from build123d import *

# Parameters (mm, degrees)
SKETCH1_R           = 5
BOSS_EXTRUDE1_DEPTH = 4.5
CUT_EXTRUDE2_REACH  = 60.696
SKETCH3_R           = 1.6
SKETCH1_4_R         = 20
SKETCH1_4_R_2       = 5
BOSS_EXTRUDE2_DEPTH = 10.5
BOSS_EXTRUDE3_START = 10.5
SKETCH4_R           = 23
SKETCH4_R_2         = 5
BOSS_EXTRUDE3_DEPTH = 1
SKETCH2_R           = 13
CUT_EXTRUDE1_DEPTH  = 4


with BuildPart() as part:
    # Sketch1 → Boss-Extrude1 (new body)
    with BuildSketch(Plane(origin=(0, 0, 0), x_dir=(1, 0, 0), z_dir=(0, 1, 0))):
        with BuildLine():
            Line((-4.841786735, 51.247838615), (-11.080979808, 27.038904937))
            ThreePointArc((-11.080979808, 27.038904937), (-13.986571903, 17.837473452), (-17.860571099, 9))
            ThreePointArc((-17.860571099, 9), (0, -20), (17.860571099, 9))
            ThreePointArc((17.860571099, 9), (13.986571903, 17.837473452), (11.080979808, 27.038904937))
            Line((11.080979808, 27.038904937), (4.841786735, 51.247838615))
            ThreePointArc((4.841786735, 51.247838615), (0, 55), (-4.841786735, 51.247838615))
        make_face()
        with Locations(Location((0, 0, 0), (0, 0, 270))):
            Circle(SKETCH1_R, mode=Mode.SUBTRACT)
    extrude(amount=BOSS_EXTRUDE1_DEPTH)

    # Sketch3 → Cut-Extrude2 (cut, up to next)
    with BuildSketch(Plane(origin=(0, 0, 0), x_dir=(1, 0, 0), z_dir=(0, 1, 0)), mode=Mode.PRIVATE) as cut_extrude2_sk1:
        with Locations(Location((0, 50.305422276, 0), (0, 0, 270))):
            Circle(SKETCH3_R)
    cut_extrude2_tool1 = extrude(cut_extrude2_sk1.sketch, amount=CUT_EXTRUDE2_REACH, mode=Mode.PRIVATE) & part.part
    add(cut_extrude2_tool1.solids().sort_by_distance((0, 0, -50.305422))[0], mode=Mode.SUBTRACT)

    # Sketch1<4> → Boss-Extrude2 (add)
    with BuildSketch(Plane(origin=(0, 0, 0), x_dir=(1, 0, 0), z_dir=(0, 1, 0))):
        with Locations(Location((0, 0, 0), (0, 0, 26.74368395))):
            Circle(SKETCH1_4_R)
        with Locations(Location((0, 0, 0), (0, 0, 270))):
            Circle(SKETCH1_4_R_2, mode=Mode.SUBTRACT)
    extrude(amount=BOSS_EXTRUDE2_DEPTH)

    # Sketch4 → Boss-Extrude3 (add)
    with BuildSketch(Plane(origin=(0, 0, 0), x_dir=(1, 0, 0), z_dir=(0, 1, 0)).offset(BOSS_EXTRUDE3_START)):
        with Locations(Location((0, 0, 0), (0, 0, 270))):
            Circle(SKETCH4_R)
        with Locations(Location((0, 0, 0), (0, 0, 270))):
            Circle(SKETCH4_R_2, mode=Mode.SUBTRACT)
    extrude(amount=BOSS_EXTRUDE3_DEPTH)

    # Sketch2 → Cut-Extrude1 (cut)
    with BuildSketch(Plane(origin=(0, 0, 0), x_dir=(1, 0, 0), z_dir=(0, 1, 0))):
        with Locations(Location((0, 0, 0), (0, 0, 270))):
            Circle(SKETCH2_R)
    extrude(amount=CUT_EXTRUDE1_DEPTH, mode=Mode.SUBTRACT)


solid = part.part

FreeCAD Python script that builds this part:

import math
import FreeCAD as App
import Part
import Sketcher
Q = App.Units.Quantity

doc = App.newDocument("Part")
body = doc.addObject("PartDesign::Body", "Body")

# Sketch on XZ plane
sketch1 = doc.addObject("Sketcher::SketchObject", "Sketch")
body.addObject(sketch1)
sketch1.AttachmentSupport = (doc.XZ_Plane, [""])
sketch1.MapMode = "FlatFace"
sketch1.addGeometry(Part.LineSegment(App.Vector(-4.841787, -51.247839, 0), App.Vector(-11.08098, -27.038905, 0)), False)
sketch1.addGeometry(Part.ArcOfCircle(Part.Circle(App.Vector(-98.233141, -49.5, 0), App.Vector(0, 0, 1), 90), math.radians(14.451934), math.radians(26.743684)), False)
sketch1.addGeometry(Part.ArcOfCircle(Part.Circle(App.Vector(0, 0, 0), App.Vector(0, 0, 1), 20), math.radians(-26.743684), math.radians(206.743684)), False)
sketch1.addGeometry(Part.ArcOfCircle(Part.Circle(App.Vector(98.233141, -49.5, 0), App.Vector(0, 0, 1), 90), math.radians(153.256316), math.radians(165.548066)), False)
sketch1.addGeometry(Part.LineSegment(App.Vector(11.08098, -27.038905, 0), App.Vector(4.841787, -51.247839, 0)), False)
sketch1.addGeometry(Part.ArcOfCircle(Part.Circle(App.Vector(0, -50, 0), App.Vector(0, 0, 1), 5), math.radians(-165.548066), math.radians(-14.451934)), False)
sketch1.addGeometry(Part.Circle(App.Vector(0, 0, 0), App.Vector(0, 0, 1), 5), False)
sketch1.addConstraint(Sketcher.Constraint("Tangent", 0, 2, 1, 1))
sketch1.addConstraint(Sketcher.Constraint("Tangent", 1, 2, 2, 2))
sketch1.addConstraint(Sketcher.Constraint("Tangent", 2, 1, 3, 1))
sketch1.addConstraint(Sketcher.Constraint("Tangent", 3, 2, 4, 1))
sketch1.addConstraint(Sketcher.Constraint("Tangent", 4, 2, 5, 2))
sketch1.addConstraint(Sketcher.Constraint("Tangent", 5, 1, 0, 1))
sketch1.addConstraint(Sketcher.Constraint("Coincident", 2, 3, -1, 1))
sketch1.addConstraint(Sketcher.Constraint("Coincident", 6, 3, -1, 1))
sketch1.addConstraint(Sketcher.Constraint("Equal", 1, 3))
sketch1.addConstraint(Sketcher.Constraint("Equal", 5, 6))
sketch1.addConstraint(Sketcher.Constraint("Symmetric", 0, 2, 3, 2, -2))
sketch1.addConstraint(Sketcher.Constraint("Diameter", 6, Q("10 mm")))
sketch1.addConstraint(Sketcher.Constraint("Radius", 1, Q("90 mm")))
sketch1.addConstraint(Sketcher.Constraint("Radius", 2, Q("20 mm")))
sketch1.addConstraint(Sketcher.Constraint("Distance", 0, Q("25 mm")))
sketch1.addConstraint(Sketcher.Constraint("DistanceY", 5, 3, -1, 1, Q("50 mm")))
pad1 = doc.addObject("PartDesign::Pad", "Pad")
body.addObject(pad1)
pad1.Profile = sketch1
pad1.Length = 4.5
pad1.Reversed = True

# Sketch on XZ plane
sketch2 = doc.addObject("Sketcher::SketchObject", "Sketch001")
body.addObject(sketch2)
sketch2.AttachmentSupport = (doc.XZ_Plane, [""])
sketch2.MapMode = "FlatFace"
sketch2.addGeometry(Part.Circle(App.Vector(0, -50.305422, 0), App.Vector(0, 0, 1), 1.6), False)
sketch2.addConstraint(Sketcher.Constraint("PointOnObject", 0, 3, -2))
sketch2.addConstraint(Sketcher.Constraint("Diameter", 0, Q("3.2 mm")))
sketch2.addConstraint(Sketcher.Constraint("DistanceY", 0, 3, -1, 1, Q("50.305422 mm")))
pocket1 = doc.addObject("PartDesign::Pocket", "Pocket")
body.addObject(pocket1)
pocket1.Profile = sketch2
pocket1.Type = "UpToFirst"

# Sketch on XZ plane
sketch3 = doc.addObject("Sketcher::SketchObject", "Sketch002")
body.addObject(sketch3)
sketch3.AttachmentSupport = (doc.XZ_Plane, [""])
sketch3.MapMode = "FlatFace"
sketch3.addGeometry(Part.Circle(App.Vector(0, 0, 0), App.Vector(0, 0, 1), 20), False)
sketch3.addGeometry(Part.Circle(App.Vector(0, 0, 0), App.Vector(0, 0, 1), 5), False)
sketch3.addConstraint(Sketcher.Constraint("Coincident", 0, 3, -1, 1))
sketch3.addConstraint(Sketcher.Constraint("Coincident", 1, 3, -1, 1))
sketch3.addConstraint(Sketcher.Constraint("Diameter", 0, Q("40 mm")))
sketch3.addConstraint(Sketcher.Constraint("Diameter", 1, Q("10 mm")))
pad2 = doc.addObject("PartDesign::Pad", "Pad001")
body.addObject(pad2)
pad2.Profile = sketch3
pad2.Length = 10.5
pad2.Reversed = True

# Sketch on XZ plane
sketch4 = doc.addObject("Sketcher::SketchObject", "Sketch003")
body.addObject(sketch4)
sketch4.AttachmentSupport = (doc.XZ_Plane, [""])
sketch4.MapMode = "FlatFace"
sketch4.AttachmentOffset = App.Placement(App.Vector(0, 0, -10.5), App.Rotation())
sketch4.addGeometry(Part.Circle(App.Vector(0, 0, 0), App.Vector(0, 0, 1), 23), False)
sketch4.addGeometry(Part.Circle(App.Vector(0, 0, 0), App.Vector(0, 0, 1), 5), False)
sketch4.addConstraint(Sketcher.Constraint("Coincident", 0, 3, -1, 1))
sketch4.addConstraint(Sketcher.Constraint("Coincident", 1, 3, -1, 1))
sketch4.addConstraint(Sketcher.Constraint("Diameter", 0, Q("46 mm")))
sketch4.addConstraint(Sketcher.Constraint("Diameter", 1, Q("10 mm")))
pad3 = doc.addObject("PartDesign::Pad", "Pad002")
body.addObject(pad3)
pad3.Profile = sketch4
pad3.Length = 1
pad3.Reversed = True

# Sketch on XZ plane
sketch5 = doc.addObject("Sketcher::SketchObject", "Sketch004")
body.addObject(sketch5)
sketch5.AttachmentSupport = (doc.XZ_Plane, [""])
sketch5.MapMode = "FlatFace"
sketch5.addGeometry(Part.Circle(App.Vector(0, 0, 0), App.Vector(0, 0, 1), 13), False)
sketch5.addConstraint(Sketcher.Constraint("Coincident", 0, 3, -1, 1))
sketch5.addConstraint(Sketcher.Constraint("Diameter", 0, Q("26 mm")))
pocket2 = doc.addObject("PartDesign::Pocket", "Pocket001")
body.addObject(pocket2)
pocket2.Profile = sketch5
pocket2.Length = 4

doc.recompute()
